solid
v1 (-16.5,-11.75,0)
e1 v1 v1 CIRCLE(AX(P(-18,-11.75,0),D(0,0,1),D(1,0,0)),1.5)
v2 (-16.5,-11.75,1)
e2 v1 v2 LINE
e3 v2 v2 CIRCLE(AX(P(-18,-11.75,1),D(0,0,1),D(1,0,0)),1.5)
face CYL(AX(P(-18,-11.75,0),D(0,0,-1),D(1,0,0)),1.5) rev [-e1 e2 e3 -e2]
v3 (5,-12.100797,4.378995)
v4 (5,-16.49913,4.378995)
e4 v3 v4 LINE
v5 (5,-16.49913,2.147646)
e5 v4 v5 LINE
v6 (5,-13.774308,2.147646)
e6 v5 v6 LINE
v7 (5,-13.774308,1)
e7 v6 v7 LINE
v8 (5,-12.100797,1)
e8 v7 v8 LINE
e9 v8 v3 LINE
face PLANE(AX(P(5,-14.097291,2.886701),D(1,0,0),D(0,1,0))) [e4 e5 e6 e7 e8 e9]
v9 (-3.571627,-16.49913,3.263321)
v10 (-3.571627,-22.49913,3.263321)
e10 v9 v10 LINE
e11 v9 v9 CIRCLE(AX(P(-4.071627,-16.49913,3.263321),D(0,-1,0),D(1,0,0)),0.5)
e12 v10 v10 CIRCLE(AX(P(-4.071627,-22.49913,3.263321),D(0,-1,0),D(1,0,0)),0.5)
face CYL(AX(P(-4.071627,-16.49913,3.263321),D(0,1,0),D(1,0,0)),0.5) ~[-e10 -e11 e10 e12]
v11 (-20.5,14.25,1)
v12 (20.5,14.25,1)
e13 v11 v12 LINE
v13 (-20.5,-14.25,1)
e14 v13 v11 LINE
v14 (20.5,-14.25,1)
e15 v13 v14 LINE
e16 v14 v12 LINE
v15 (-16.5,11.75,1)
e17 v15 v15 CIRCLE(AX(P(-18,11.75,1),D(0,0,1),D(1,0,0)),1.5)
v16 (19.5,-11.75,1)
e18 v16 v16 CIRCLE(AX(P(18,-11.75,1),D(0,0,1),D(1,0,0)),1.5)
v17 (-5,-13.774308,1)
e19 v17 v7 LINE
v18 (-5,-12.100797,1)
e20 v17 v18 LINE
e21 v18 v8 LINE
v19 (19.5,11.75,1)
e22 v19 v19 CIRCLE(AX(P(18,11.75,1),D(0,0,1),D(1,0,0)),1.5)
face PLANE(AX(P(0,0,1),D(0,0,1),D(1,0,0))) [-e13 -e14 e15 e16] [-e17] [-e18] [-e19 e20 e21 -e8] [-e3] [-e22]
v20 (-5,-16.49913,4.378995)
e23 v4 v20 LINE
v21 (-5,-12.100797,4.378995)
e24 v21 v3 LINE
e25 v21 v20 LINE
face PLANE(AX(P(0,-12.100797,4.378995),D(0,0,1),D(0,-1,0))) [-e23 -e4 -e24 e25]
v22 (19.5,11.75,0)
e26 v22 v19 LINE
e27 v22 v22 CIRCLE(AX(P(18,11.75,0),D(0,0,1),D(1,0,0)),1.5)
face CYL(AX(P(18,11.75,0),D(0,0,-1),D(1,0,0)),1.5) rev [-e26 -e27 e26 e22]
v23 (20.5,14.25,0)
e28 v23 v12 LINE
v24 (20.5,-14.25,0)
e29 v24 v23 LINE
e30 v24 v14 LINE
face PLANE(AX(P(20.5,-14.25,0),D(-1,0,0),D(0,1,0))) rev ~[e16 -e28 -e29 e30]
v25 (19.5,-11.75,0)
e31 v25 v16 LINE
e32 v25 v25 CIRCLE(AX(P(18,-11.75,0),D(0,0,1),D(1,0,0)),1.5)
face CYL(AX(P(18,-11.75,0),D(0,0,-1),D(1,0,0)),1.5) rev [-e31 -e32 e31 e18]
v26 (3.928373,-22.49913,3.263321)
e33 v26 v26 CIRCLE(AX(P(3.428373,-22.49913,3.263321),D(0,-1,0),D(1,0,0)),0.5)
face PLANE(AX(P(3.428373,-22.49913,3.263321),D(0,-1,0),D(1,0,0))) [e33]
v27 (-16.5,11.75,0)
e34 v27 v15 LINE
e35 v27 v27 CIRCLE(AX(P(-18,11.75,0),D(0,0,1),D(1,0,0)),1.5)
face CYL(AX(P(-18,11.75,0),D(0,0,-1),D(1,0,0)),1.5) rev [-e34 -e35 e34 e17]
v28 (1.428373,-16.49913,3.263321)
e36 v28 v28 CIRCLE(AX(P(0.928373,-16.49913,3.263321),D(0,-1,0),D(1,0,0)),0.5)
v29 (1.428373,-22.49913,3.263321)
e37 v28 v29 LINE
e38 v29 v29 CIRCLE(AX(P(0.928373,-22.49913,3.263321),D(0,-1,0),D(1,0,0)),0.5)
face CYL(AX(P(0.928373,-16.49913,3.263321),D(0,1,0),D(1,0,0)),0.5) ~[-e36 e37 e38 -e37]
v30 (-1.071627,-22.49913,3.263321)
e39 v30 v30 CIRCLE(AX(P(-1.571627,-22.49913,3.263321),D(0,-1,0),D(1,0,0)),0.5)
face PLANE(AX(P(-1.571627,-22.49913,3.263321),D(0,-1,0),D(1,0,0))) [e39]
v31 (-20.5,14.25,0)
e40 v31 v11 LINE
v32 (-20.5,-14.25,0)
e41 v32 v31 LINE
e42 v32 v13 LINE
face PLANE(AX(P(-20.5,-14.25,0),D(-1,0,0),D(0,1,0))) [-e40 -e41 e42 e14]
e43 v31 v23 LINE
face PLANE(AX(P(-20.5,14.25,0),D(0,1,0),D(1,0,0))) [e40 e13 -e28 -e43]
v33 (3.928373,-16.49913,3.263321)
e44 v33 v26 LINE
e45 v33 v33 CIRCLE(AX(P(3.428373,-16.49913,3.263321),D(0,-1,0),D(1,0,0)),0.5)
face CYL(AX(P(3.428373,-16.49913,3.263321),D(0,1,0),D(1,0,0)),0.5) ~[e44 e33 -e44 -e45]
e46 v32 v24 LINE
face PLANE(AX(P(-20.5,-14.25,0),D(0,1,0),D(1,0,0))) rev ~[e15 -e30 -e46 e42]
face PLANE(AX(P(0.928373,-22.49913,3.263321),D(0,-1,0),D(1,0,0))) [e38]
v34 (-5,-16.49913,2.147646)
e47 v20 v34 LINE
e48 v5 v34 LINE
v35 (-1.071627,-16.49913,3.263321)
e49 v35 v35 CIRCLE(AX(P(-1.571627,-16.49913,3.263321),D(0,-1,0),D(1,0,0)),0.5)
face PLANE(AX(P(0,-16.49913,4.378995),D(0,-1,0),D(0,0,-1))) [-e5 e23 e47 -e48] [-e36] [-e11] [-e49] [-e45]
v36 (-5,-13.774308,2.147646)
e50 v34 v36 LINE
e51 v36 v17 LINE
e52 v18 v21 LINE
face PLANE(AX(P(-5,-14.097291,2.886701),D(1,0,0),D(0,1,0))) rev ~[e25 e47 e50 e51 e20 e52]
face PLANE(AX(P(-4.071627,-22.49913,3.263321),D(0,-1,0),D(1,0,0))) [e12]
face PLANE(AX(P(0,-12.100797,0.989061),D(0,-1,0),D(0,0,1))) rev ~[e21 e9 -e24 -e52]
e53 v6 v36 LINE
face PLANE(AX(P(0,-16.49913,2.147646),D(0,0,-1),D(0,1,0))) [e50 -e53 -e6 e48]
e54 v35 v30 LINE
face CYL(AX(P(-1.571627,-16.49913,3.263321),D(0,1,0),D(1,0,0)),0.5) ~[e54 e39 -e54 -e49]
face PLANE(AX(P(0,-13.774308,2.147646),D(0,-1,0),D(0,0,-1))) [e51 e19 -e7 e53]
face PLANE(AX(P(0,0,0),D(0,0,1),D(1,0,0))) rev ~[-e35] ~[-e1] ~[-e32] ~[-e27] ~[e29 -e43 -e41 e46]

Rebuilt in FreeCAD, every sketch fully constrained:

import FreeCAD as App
import Part
import Sketcher

doc = App.newDocument("Part")
params = doc.addObject("Spreadsheet::Sheet", "Params")
for row, (alias, value) in enumerate([
    ("sketch1_diameter", "3 mm"),
    ("sketch1_width", "41 mm"),
    ("sketch1_height", "28.5 mm"),
    ("pad1_length", "1 mm"),
    ("pad2_length", "5 mm"),
    ("pad2_length2", "5 mm"),
    ("sketch3_diameter", "1 mm"),
    ("pad3_length", "6 mm"),
], start=1):
    params.set(f"A{row}", alias)
    params.set(f"B{row}", "=" + value)
    params.setAlias(f"B{row}", alias)

body = doc.addObject("PartDesign::Body", "Body")

sketch1 = body.newObject("Sketcher::SketchObject", "Sketch")
sketch1.AttachmentSupport = (doc.getObject("XY_Plane"), [""])
sketch1.MapMode = "FlatFace"
sketch1.addGeometry(Part.LineSegment(App.Vector(-20.5, 14.2, 0), App.Vector(-20.5, -14.2, 0)), False)
sketch1.addGeometry(Part.LineSegment(App.Vector(-20.5, -14.2, 0), App.Vector(20.5, -14.2, 0)), False)
sketch1.addGeometry(Part.LineSegment(App.Vector(20.5, -14.2, 0), App.Vector(20.5, 14.2, 0)), False)
sketch1.addGeometry(Part.LineSegment(App.Vector(20.5, 14.2, 0), App.Vector(-20.5, 14.2, 0)), False)
sketch1.addGeometry(Part.Circle(App.Vector(-18, -11.8, 0), App.Vector(0, 0, 1), 1.5), False)
sketch1.addGeometry(Part.Circle(App.Vector(18, -11.8, 0), App.Vector(0, 0, 1), 1.5), False)
sketch1.addGeometry(Part.Circle(App.Vector(-18, 11.8, 0), App.Vector(0, 0, 1), 1.5), False)
sketch1.addGeometry(Part.Circle(App.Vector(18, 11.8, 0), App.Vector(0, 0, 1), 1.5), False)
sketch1.addConstraint(Sketcher.Constraint("Coincident", 0, 2, 1, 1))
sketch1.addConstraint(Sketcher.Constraint("Coincident", 1, 2, 2, 1))
sketch1.addConstraint(Sketcher.Constraint("Coincident", 2, 2, 3, 1))
sketch1.addConstraint(Sketcher.Constraint("Coincident", 3, 2, 0, 1))
sketch1.addConstraint(Sketcher.Constraint("Vertical", 0))
sketch1.addConstraint(Sketcher.Constraint("Horizontal", 1))
sketch1.addConstraint(Sketcher.Constraint("Vertical", 2))
sketch1.addConstraint(Sketcher.Constraint("Horizontal", 3))
sketch1.addConstraint(Sketcher.Constraint("Equal", 4, 5))
sketch1.addConstraint(Sketcher.Constraint("Equal", 5, 6))
sketch1.addConstraint(Sketcher.Constraint("Equal", 6, 7))
sketch1.addConstraint(Sketcher.Constraint("Symmetric", 5, 3, 6, 3, -1, 1))
sketch1.addConstraint(Sketcher.Constraint("Symmetric", 4, 3, 7, 3, -1, 1))
sketch1.addConstraint(Sketcher.Constraint("Symmetric", 0, 2, 2, 2, -1, 1))
sketch1.addConstraint(Sketcher.Constraint("Symmetric", 4, 3, 5, 3, -2))
sketch1.addConstraint(Sketcher.Constraint("Diameter", 4, 3.0))
sketch1.addConstraint(Sketcher.Constraint("DistanceX", 1, 1, 1, 2, 41.0))
sketch1.addConstraint(Sketcher.Constraint("DistanceY", 0, 2, 0, 1, 28.5))
sketch1.addConstraint(Sketcher.Constraint("DistanceX", 4, 3, -1, 1, 18.0))
sketch1.addConstraint(Sketcher.Constraint("DistanceY", 0, 2, 6, 3, 26.0))
sketch1.setExpression("Constraints[15]", "Params.sketch1_diameter")
sketch1.setExpression("Constraints[16]", "Params.sketch1_width")
sketch1.setExpression("Constraints[17]", "Params.sketch1_height")
pad1 = body.newObject("PartDesign::Pad", "Pad")
pad1.Profile = sketch1
pad1.setExpression("Length", "Params.pad1_length")

sketch2 = body.newObject("Sketcher::SketchObject", "Sketch001")
sketch2.AttachmentSupport = (doc.getObject("YZ_Plane"), [""])
sketch2.MapMode = "FlatFace"
sketch2.addGeometry(Part.LineSegment(App.Vector(-13.8, 1, 0), App.Vector(-12.1, 1, 0)), False)
sketch2.addGeometry(Part.LineSegment(App.Vector(-12.1, 1, 0), App.Vector(-12.1, 4.4, 0)), False)
sketch2.addGeometry(Part.LineSegment(App.Vector(-12.1, 4.4, 0), App.Vector(-16.5, 4.4, 0)), False)
sketch2.addGeometry(Part.LineSegment(App.Vector(-16.5, 4.4, 0), App.Vector(-16.5, 2.1, 0)), False)
sketch2.addGeometry(Part.LineSegment(App.Vector(-16.5, 2.1, 0), App.Vector(-13.8, 2.1, 0)), False)
sketch2.addGeometry(Part.LineSegment(App.Vector(-13.8, 2.1, 0), App.Vector(-13.8, 1, 0)), False)
sketch2.addConstraint(Sketcher.Constraint("Coincident", 0, 2, 1, 1))
sketch2.addConstraint(Sketcher.Constraint("Coincident", 1, 2, 2, 1))
sketch2.addConstraint(Sketcher.Constraint("Coincident", 2, 2, 3, 1))
sketch2.addConstraint(Sketcher.Constraint("Coincident", 3, 2, 4, 1))
sketch2.addConstraint(Sketcher.Constraint("Coincident", 4, 2, 5, 1))
sketch2.addConstraint(Sketcher.Constraint("Coincident", 5, 2, 0, 1))
sketch2.addConstraint(Sketcher.Constraint("Horizontal", 0))
sketch2.addConstraint(Sketcher.Constraint("Vertical", 1))
sketch2.addConstraint(Sketcher.Constraint("Horizontal", 2))
sketch2.addConstraint(Sketcher.Constraint("Vertical", 3))
sketch2.addConstraint(Sketcher.Constraint("Horizontal", 4))
sketch2.addConstraint(Sketcher.Constraint("Vertical", 5))
sketch2.addConstraint(Sketcher.Constraint("DistanceX", 0, 1, 0, 2, 1.673511))
sketch2.addConstraint(Sketcher.Constraint("DistanceY", 3, 2, 3, 1, 2.231349))
sketch2.addConstraint(Sketcher.Constraint("DistanceX", 2, 2, 2, 1, 4.398333))
sketch2.addConstraint(Sketcher.Constraint("DistanceY", 1, 1, 1, 2, 3.389934))
sketch2.addConstraint(Sketcher.Constraint("DistanceY", -1, 1, 0, 2, 0.989061))
sketch2.addConstraint(Sketcher.Constraint("DistanceX", 2, 2, -1, 1, 16.49913))
pad2 = body.newObject("PartDesign::Pad", "Pad001")
pad2.Profile = sketch2
pad2.Type = "TwoLengths"
pad2.setExpression("Length", "Params.pad2_length")
pad2.setExpression("Length2", "Params.pad2_length2")

sketch3 = body.newObject("Sketcher::SketchObject", "Sketch002")
sketch3.AttachmentSupport = (doc.getObject("XZ_Plane"), [""])
sketch3.MapMode = "FlatFace"
sketch3.AttachmentOffset = App.Placement(App.Vector(0, 0, 16.49913), App.Rotation())
sketch3.addGeometry(Part.Circle(App.Vector(-4.1, 3.3, 0), App.Vector(0, 0, 1), 0.5), False)
sketch3.addGeometry(Part.Circle(App.Vector(-1.6, 3.3, 0), App.Vector(0, 0, 1), 0.5), False)
sketch3.addGeometry(Part.Circle(App.Vector(0.9, 3.3, 0), App.Vector(0, 0, 1), 0.5), False)
sketch3.addGeometry(Part.Circle(App.Vector(3.4, 3.3, 0), App.Vector(0, 0, 1), 0.5), False)
sketch3.addConstraint(Sketcher.Constraint("Equal", 0, 1))
sketch3.addConstraint(Sketcher.Constraint("Equal", 1, 2))
sketch3.addConstraint(Sketcher.Constraint("Equal", 2, 3))
sketch3.addConstraint(Sketcher.Constraint("Horizontal", 0, 3, 1, 3))
sketch3.addConstraint(Sketcher.Constraint("Horizontal", 1, 3, 2, 3))
sketch3.addConstraint(Sketcher.Constraint("Horizontal", 2, 3, 3, 3))
sketch3.addConstraint(Sketcher.Constraint("Diameter", 0, 1.0))
sketch3.addConstraint(Sketcher.Constraint("DistanceX", 0, 3, 2, 3, 5.0))
sketch3.addConstraint(Sketcher.Constraint("DistanceX", 1, 3, 3, 3, 5.0))
sketch3.addConstraint(Sketcher.Constraint("DistanceX", 0, 3, 1, 3, 2.5))
sketch3.addConstraint(Sketcher.Constraint("DistanceY", -1, 1, 0, 3, 3.263321))
sketch3.addConstraint(Sketcher.Constraint("DistanceX", 0, 3, -1, 1, 4.071627))
sketch3.setExpression("Constraints[6]", "Params.sketch3_diameter")
pad3 = body.newObject("PartDesign::Pad", "Pad002")
pad3.Profile = sketch3
pad3.setExpression("Length", "Params.pad3_length")

doc.recompute()
